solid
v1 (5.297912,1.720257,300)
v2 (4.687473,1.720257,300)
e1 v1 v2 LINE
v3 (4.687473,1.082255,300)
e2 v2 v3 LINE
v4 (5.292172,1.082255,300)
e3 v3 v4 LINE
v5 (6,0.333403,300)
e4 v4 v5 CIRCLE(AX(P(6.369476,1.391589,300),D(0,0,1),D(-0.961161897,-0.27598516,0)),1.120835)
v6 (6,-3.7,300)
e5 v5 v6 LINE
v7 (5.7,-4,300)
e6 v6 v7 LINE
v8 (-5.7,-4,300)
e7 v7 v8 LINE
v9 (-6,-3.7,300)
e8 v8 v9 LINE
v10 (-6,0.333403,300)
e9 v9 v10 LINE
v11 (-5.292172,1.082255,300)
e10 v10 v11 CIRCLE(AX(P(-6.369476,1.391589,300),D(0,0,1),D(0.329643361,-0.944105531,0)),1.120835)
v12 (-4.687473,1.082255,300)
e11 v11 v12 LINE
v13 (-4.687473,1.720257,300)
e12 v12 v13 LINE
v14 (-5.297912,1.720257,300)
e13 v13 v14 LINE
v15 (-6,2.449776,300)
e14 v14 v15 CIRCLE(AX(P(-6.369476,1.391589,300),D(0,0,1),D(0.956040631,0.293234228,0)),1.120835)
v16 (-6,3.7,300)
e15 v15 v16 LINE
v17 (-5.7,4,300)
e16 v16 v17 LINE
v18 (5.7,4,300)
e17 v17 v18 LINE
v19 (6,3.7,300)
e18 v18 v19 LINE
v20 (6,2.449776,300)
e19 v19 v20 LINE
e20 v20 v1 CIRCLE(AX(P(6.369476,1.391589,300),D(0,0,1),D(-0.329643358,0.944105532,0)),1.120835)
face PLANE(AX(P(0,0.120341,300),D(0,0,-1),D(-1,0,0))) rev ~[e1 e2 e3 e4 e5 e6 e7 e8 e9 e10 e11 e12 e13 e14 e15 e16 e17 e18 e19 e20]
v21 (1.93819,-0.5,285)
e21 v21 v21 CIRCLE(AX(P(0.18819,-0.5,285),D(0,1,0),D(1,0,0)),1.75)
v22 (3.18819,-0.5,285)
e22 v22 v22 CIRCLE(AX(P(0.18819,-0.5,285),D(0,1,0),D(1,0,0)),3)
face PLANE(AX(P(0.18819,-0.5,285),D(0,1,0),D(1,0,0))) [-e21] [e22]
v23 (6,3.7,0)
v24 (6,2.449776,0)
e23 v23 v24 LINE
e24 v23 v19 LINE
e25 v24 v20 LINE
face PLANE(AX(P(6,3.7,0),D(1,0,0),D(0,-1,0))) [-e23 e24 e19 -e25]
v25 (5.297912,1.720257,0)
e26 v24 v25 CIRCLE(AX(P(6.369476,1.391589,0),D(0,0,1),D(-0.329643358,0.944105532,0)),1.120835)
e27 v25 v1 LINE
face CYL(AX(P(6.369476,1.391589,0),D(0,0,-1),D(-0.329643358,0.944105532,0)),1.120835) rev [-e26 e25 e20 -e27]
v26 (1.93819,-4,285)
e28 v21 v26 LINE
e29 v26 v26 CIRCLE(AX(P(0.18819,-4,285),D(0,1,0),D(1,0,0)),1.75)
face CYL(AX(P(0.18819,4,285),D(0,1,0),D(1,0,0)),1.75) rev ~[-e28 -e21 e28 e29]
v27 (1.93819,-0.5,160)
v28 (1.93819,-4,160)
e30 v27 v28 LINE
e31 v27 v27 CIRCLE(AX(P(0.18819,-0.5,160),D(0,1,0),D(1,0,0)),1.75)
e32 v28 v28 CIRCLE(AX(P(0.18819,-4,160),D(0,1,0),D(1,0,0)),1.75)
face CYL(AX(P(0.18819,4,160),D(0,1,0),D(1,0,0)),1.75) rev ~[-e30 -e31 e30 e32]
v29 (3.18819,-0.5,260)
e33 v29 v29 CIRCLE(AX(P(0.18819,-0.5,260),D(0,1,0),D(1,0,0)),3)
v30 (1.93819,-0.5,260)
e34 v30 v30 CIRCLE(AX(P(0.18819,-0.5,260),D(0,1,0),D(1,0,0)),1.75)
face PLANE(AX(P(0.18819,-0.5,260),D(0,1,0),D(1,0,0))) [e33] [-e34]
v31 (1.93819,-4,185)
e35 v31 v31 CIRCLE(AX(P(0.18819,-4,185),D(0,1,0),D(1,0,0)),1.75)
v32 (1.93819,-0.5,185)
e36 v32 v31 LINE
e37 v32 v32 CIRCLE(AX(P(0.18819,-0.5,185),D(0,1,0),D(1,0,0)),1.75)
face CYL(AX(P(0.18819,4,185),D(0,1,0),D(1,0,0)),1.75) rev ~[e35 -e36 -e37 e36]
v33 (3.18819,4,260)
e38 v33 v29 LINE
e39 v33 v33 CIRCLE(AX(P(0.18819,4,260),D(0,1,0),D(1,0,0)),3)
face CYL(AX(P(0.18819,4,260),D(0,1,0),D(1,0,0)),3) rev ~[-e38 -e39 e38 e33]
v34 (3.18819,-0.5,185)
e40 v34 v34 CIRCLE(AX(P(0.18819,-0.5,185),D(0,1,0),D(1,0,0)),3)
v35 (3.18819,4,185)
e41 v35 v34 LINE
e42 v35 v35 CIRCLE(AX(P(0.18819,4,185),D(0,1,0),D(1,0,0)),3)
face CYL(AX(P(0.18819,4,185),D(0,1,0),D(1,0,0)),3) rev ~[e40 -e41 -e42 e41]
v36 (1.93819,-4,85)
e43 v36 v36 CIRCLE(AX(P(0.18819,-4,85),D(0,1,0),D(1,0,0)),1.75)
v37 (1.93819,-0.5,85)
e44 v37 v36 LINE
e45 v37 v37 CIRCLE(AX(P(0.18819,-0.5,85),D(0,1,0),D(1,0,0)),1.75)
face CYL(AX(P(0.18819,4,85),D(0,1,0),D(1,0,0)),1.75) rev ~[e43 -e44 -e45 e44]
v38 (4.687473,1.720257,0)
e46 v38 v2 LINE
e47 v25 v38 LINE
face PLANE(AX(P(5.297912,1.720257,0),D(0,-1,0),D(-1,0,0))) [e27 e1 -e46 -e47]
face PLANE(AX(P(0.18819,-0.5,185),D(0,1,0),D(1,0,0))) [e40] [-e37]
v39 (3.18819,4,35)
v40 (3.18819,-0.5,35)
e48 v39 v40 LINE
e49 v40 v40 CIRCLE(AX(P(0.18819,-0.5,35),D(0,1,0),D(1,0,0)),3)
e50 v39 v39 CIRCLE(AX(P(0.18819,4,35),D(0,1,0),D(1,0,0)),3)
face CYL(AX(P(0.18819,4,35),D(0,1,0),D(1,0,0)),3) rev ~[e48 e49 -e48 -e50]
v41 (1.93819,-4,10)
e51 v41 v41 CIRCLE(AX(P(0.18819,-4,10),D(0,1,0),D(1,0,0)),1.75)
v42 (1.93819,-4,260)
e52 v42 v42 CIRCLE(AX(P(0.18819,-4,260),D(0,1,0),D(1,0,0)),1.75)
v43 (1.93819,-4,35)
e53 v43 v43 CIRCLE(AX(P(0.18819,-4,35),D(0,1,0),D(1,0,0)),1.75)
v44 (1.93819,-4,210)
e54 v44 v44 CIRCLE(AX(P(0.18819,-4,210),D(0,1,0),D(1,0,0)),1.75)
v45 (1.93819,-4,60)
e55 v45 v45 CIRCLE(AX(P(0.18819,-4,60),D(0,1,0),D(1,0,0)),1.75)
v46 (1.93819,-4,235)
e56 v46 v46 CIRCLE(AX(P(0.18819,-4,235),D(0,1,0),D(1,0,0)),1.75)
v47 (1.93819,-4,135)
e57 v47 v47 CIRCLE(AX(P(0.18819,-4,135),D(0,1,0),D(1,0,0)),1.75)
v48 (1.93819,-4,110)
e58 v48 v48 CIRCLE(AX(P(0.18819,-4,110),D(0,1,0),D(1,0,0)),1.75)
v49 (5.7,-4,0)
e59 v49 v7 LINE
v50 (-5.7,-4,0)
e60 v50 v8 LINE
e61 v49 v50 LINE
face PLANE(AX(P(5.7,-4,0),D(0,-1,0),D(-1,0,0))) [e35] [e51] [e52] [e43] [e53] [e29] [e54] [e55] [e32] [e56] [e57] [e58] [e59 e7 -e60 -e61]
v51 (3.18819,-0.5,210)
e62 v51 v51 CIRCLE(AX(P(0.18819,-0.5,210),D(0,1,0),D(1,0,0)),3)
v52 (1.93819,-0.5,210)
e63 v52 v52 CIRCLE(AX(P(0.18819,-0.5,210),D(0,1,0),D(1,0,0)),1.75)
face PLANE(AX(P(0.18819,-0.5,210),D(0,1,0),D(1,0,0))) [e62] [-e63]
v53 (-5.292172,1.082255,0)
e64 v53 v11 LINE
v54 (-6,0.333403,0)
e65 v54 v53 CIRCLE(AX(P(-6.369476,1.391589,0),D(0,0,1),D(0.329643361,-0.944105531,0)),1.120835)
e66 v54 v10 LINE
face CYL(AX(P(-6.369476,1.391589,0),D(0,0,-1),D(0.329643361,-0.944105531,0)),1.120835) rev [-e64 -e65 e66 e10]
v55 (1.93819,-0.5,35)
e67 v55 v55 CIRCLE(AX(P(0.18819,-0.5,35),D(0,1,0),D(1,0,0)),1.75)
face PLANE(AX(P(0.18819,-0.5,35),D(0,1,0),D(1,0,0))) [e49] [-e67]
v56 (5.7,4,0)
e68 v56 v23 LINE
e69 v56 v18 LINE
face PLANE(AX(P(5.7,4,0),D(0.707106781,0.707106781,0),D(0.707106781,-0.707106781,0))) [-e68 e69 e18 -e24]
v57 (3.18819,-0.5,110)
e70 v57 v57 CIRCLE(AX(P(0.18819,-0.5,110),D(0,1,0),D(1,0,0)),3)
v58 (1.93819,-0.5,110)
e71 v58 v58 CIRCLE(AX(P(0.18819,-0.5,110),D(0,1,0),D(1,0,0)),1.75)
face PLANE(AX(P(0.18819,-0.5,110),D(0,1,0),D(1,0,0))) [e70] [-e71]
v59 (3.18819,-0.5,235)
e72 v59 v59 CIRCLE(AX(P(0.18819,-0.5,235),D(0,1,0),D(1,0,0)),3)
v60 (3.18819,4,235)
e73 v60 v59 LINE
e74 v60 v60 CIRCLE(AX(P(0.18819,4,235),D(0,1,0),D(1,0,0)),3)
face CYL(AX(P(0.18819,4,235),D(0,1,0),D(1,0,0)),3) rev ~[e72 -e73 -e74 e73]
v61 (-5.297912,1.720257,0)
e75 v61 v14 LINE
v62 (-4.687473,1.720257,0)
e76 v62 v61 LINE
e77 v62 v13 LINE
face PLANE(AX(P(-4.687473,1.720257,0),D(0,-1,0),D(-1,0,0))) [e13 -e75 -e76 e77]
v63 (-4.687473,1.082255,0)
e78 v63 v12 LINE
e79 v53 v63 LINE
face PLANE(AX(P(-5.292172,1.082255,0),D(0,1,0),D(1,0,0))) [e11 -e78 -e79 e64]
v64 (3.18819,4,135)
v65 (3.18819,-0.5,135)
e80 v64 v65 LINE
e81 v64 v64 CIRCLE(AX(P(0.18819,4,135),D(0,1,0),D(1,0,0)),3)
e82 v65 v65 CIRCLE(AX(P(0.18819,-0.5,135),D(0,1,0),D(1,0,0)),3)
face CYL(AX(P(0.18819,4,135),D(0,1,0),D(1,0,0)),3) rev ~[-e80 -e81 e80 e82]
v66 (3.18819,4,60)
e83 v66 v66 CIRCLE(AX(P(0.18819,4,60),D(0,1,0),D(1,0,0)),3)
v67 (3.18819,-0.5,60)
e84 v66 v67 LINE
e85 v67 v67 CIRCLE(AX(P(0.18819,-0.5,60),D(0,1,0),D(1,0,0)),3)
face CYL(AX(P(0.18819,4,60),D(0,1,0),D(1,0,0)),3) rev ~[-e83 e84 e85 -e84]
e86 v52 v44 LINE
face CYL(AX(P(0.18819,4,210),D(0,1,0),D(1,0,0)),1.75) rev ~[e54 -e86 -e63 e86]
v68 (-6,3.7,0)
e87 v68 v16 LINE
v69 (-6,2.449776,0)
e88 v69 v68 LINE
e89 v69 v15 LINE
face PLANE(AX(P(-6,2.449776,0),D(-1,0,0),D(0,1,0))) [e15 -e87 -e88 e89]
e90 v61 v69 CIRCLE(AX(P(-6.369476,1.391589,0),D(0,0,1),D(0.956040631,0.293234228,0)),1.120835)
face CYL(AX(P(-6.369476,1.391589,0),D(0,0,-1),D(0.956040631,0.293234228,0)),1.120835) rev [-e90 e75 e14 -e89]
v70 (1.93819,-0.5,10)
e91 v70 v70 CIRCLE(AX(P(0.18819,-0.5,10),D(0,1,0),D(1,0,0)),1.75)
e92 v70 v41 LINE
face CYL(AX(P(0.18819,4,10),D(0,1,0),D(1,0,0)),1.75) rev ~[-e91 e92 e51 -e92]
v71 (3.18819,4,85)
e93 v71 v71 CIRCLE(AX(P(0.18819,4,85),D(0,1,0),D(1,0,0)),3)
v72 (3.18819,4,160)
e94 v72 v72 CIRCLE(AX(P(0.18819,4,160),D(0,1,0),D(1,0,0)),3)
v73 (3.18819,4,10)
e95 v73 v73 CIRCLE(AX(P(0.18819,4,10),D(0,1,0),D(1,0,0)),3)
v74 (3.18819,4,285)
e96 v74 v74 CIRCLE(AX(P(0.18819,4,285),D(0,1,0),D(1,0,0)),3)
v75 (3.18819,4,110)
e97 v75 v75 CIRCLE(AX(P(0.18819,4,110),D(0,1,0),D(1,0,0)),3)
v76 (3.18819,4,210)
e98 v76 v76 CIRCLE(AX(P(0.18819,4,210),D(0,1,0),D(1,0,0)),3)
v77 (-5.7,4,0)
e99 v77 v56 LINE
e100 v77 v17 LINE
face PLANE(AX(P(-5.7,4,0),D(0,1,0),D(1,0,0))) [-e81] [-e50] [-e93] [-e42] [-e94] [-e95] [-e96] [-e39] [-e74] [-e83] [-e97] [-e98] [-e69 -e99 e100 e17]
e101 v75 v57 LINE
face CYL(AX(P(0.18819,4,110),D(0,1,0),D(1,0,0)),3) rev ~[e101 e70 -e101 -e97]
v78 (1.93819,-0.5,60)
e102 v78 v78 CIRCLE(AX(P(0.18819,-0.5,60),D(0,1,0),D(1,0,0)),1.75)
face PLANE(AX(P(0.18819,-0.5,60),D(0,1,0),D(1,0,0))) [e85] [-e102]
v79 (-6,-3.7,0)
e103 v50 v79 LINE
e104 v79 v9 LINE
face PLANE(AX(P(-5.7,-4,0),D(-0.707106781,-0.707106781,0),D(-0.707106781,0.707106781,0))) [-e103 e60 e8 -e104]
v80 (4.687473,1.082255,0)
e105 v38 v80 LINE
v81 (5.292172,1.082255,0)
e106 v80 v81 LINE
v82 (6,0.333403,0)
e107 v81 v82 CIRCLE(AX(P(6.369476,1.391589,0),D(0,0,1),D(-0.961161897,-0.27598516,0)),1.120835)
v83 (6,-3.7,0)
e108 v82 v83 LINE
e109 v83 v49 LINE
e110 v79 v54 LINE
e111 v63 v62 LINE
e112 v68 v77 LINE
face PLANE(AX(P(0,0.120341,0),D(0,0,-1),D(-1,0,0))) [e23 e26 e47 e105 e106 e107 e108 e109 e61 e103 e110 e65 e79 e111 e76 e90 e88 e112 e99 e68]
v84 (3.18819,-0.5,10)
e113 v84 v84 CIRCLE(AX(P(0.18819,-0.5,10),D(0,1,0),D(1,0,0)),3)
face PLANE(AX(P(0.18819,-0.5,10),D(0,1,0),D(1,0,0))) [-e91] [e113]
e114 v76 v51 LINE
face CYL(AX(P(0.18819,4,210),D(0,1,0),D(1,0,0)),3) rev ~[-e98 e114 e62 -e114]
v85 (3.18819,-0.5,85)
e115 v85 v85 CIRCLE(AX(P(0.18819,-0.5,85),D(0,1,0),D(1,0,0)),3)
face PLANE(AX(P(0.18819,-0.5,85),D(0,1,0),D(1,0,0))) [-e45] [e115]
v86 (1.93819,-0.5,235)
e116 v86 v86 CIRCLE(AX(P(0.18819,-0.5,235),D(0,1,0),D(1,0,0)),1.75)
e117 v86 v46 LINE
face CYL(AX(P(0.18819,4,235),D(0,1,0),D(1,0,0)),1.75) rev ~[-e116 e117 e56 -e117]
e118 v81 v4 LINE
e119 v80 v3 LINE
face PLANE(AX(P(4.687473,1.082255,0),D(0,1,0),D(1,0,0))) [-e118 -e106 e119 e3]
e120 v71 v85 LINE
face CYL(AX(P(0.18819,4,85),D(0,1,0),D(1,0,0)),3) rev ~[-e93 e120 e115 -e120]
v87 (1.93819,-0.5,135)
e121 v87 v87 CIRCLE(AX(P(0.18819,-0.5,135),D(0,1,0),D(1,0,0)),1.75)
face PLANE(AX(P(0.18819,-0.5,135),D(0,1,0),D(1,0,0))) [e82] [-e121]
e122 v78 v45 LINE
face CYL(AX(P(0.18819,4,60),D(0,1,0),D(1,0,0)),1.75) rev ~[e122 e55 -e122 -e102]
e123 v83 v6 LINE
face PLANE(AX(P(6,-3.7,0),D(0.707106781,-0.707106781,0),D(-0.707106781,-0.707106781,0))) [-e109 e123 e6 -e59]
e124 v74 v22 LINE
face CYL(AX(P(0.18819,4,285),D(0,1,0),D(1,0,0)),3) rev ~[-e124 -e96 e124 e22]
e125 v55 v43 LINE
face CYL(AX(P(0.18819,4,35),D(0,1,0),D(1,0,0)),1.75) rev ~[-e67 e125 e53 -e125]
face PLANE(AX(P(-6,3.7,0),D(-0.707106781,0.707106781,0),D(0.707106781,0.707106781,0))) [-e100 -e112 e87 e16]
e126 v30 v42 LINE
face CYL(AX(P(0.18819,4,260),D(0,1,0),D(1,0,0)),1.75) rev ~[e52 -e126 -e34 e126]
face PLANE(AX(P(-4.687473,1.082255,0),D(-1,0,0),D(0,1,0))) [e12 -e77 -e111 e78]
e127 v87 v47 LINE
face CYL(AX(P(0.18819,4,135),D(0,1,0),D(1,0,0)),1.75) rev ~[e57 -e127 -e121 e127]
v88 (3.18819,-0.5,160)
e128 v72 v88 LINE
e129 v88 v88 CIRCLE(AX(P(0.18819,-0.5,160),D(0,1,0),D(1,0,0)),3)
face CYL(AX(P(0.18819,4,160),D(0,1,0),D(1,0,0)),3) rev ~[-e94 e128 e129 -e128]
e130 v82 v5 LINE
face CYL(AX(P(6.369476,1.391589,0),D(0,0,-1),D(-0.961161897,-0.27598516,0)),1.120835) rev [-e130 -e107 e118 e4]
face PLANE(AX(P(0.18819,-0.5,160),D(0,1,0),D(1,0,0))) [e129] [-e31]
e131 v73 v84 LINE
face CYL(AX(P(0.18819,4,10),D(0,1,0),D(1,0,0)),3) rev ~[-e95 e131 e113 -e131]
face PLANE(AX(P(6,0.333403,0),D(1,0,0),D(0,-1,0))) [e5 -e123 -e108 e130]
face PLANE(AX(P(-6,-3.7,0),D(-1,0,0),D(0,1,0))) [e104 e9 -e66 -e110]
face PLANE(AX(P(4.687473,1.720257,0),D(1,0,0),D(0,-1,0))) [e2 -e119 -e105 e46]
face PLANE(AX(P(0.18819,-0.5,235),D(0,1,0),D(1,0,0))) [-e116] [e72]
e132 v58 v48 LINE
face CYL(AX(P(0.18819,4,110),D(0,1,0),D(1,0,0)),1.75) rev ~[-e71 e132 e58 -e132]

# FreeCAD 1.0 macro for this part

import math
import FreeCAD as App
import Part
import Sketcher

doc = App.newDocument("Part")
params = doc.addObject("Spreadsheet::Sheet", "Params")
for row, (alias, value) in enumerate([
    ("sketch1_width", "11.4 mm"),
    ("pad1_length", "300 mm"),
    ("sketch2_diameter", "6 mm"),
    ("sketch2_diameter2", "3.5 mm"),
    ("pocket1_length", "4.5 mm"),
    ("sketch3_diameter", "3.5 mm"),
    ("linearpattern_pitch", "25 mm"),
], start=1):
    params.set(f"A{row}", alias)
    params.set(f"B{row}", "=" + value)
    params.setAlias(f"B{row}", alias)

body = doc.addObject("PartDesign::Body", "Body")

sketch1 = body.newObject("Sketcher::SketchObject", "Sketch")
sketch1.AttachmentSupport = (doc.getObject("XY_Plane"), [""])
sketch1.MapMode = "FlatFace"
sketch1.addGeometry(Part.LineSegment(App.Vector(-5.7, 4, 0), App.Vector(-6, 3.7, 0)), False)
sketch1.addGeometry(Part.LineSegment(App.Vector(-6, 3.7, 0), App.Vector(-6, 2.45, 0)), False)
sketch1.addGeometry(Part.ArcOfCircle(Part.Circle(App.Vector(-6.37, 1.39, 0), App.Vector(0, 0, 1), 1.12), math.radians(17), math.radians(71)), False)
sketch1.addGeometry(Part.LineSegment(App.Vector(-5.3, 1.72, 0), App.Vector(-4.69, 1.72, 0)), False)
sketch1.addGeometry(Part.LineSegment(App.Vector(-4.69, 1.72, 0), App.Vector(-4.69, 1.08, 0)), False)
sketch1.addGeometry(Part.LineSegment(App.Vector(-4.69, 1.08, 0), App.Vector(-5.29, 1.08, 0)), False)
sketch1.addGeometry(Part.ArcOfCircle(Part.Circle(App.Vector(-6.37, 1.39, 0), App.Vector(0, 0, 1), 1.12), math.radians(-71), math.radians(-16)), False)
sketch1.addGeometry(Part.LineSegment(App.Vector(-6, 0.33, 0), App.Vector(-6, -3.7, 0)), False)
sketch1.addGeometry(Part.LineSegment(App.Vector(-6, -3.7, 0), App.Vector(-5.7, -4, 0)), False)
sketch1.addGeometry(Part.LineSegment(App.Vector(-5.7, -4, 0), App.Vector(5.7, -4, 0)), False)
sketch1.addGeometry(Part.LineSegment(App.Vector(5.7, -4, 0), App.Vector(6, -3.7, 0)), False)
sketch1.addGeometry(Part.LineSegment(App.Vector(6, -3.7, 0), App.Vector(6, 0.33, 0)), False)
sketch1.addGeometry(Part.ArcOfCircle(Part.Circle(App.Vector(6.37, 1.39, 0), App.Vector(0, 0, 1), 1.12), math.radians(-164), math.radians(-109)), False)
sketch1.addGeometry(Part.LineSegment(App.Vector(5.29, 1.08, 0), App.Vector(4.69, 1.08, 0)), False)
sketch1.addGeometry(Part.LineSegment(App.Vector(4.69, 1.08, 0), App.Vector(4.69, 1.72, 0)), False)
sketch1.addGeometry(Part.LineSegment(App.Vector(4.69, 1.72, 0), App.Vector(5.3, 1.72, 0)), False)
sketch1.addGeometry(Part.ArcOfCircle(Part.Circle(App.Vector(6.37, 1.39, 0), App.Vector(0, 0, 1), 1.12), math.radians(109), math.radians(163)), False)
sketch1.addGeometry(Part.LineSegment(App.Vector(6, 2.45, 0), App.Vector(6, 3.7, 0)), False)
sketch1.addGeometry(Part.LineSegment(App.Vector(6, 3.7, 0), App.Vector(5.7, 4, 0)), False)
sketch1.addGeometry(Part.LineSegment(App.Vector(5.7, 4, 0), App.Vector(-5.7, 4, 0)), False)
sketch1.addConstraint(Sketcher.Constraint("Coincident", 0, 2, 1, 1))
sketch1.addConstraint(Sketcher.Constraint("Coincident", 1, 2, 2, 2))
sketch1.addConstraint(Sketcher.Constraint("Coincident", 2, 1, 3, 1))
sketch1.addConstraint(Sketcher.Constraint("Coincident", 3, 2, 4, 1))
sketch1.addConstraint(Sketcher.Constraint("Coincident", 4, 2, 5, 1))
sketch1.addConstraint(Sketcher.Constraint("Coincident", 5, 2, 6, 2))
sketch1.addConstraint(Sketcher.Constraint("Coincident", 6, 1, 7, 1))
sketch1.addConstraint(Sketcher.Constraint("Coincident", 7, 2, 8, 1))
sketch1.addConstraint(Sketcher.Constraint("Coincident", 8, 2, 9, 1))
sketch1.addConstraint(Sketcher.Constraint("Coincident", 9, 2, 10, 1))
sketch1.addConstraint(Sketcher.Constraint("Coincident", 10, 2, 11, 1))
sketch1.addConstraint(Sketcher.Constraint("Coincident", 11, 2, 12, 2))
sketch1.addConstraint(Sketcher.Constraint("Coincident", 12, 1, 13, 1))
sketch1.addConstraint(Sketcher.Constraint("Coincident", 13, 2, 14, 1))
sketch1.addConstraint(Sketcher.Constraint("Coincident", 14, 2, 15, 1))
sketch1.addConstraint(Sketcher.Constraint("Coincident", 15, 2, 16, 2))
sketch1.addConstraint(Sketcher.Constraint("Coincident", 16, 1, 17, 1))
sketch1.addConstraint(Sketcher.Constraint("Coincident", 17, 2, 18, 1))
sketch1.addConstraint(Sketcher.Constraint("Coincident", 18, 2, 19, 1))
sketch1.addConstraint(Sketcher.Constraint("Coincident", 19, 2, 0, 1))
sketch1.addConstraint(Sketcher.Constraint("Vertical", 1))
sketch1.addConstraint(Sketcher.Constraint("Horizontal", 3))
sketch1.addConstraint(Sketcher.Constraint("Vertical", 4))
sketch1.addConstraint(Sketcher.Constraint("Horizontal", 5))
sketch1.addConstraint(Sketcher.Constraint("Vertical", 7))
sketch1.addConstraint(Sketcher.Constraint("Horizontal", 9))
sketch1.addConstraint(Sketcher.Constraint("Vertical", 11))
sketch1.addConstraint(Sketcher.Constraint("Horizontal", 13))
sketch1.addConstraint(Sketcher.Constraint("Vertical", 14))
sketch1.addConstraint(Sketcher.Constraint("Horizontal", 15))
sketch1.addConstraint(Sketcher.Constraint("Vertical", 17))
sketch1.addConstraint(Sketcher.Constraint("Horizontal", 19))
sketch1.addConstraint(Sketcher.Constraint("Coincident", 6, 3, 2, 3))
sketch1.addConstraint(Sketcher.Constraint("Coincident", 16, 3, 12, 3))
sketch1.addConstraint(Sketcher.Constraint("Equal", 2, 6))
sketch1.addConstraint(Sketcher.Constraint("Equal", 6, 12))
sketch1.addConstraint(Sketcher.Constraint("Equal", 12, 16))
sketch1.addConstraint(Sketcher.Constraint("Symmetric", 0, 2, 10, 2, -1, 1))
sketch1.addConstraint(Sketcher.Constraint("Symmetric", 7, 2, 17, 2, -1, 1))
sketch1.addConstraint(Sketcher.Constraint("Symmetric", 8, 2, 18, 2, -1, 1))
sketch1.addConstraint(Sketcher.Constraint("Symmetric", 2, 3, 12, 3, -2))
sketch1.addConstraint(Sketcher.Constraint("Symmetric", 7, 2, 10, 2, -2))
sketch1.addConstraint(Sketcher.Constraint("Symmetric", 4, 2, 13, 2, -2))
sketch1.addConstraint(Sketcher.Constraint("Perpendicular", 0, 8))
sketch1.addConstraint(Sketcher.Constraint("Perpendicular", 8, 10))
sketch1.addConstraint(Sketcher.Constraint("Horizontal", 3, 2, 14, 2))
sketch1.addConstraint(Sketcher.Constraint("Vertical", 9, 2, 18, 2))
sketch1.addConstraint(Sketcher.Constraint("DistanceX", 9, 1, 9, 2, 11.4))
sketch1.addConstraint(Sketcher.Constraint("DistanceX", 0, 2, -1, 1, 6.0))
sketch1.addConstraint(Sketcher.Constraint("DistanceY", 8, 2, -1, 1, 4.0))
sketch1.addConstraint(Sketcher.Constraint("DistanceY", 4, 2, 4, 1, 0.638001))
sketch1.addConstraint(Sketcher.Constraint("DistanceX", 5, 2, 5, 1, 0.604699))
sketch1.addConstraint(Sketcher.Constraint("Radius", 2, 1.120835))
sketch1.addConstraint(Sketcher.Constraint("DistanceX", 3, 1, 3, 2, 0.610439))
sketch1.addConstraint(Sketcher.Constraint("DistanceY", 1, 2, 1, 1, 1.250224))
sketch1.addConstraint(Sketcher.Constraint("DistanceY", 7, 2, 7, 1, 4.033403))
sketch1.setExpression("Constraints[47]", "Params.sketch1_width")
pad1 = body.newObject("PartDesign::Pad", "Pad")
pad1.Profile = sketch1
pad1.setExpression("Length", "Params.pad1_length")

sketch2 = body.newObject("Sketcher::SketchObject", "Sketch001")
sketch2.AttachmentSupport = (doc.getObject("XZ_Plane"), [""])
sketch2.MapMode = "FlatFace"
sketch2.AttachmentOffset = App.Placement(App.Vector(0, 0, -4), App.Rotation())
sketch2.addGeometry(Part.Circle(App.Vector(0.2, 10, 0), App.Vector(0, 0, 1), 3), False)
sketch2.addGeometry(Part.Circle(App.Vector(0.2, 10, 0), App.Vector(0, 0, 1), 1.8), False)
sketch2.addConstraint(Sketcher.Constraint("Coincident", 1, 3, 0, 3))
sketch2.addConstraint(Sketcher.Constraint("Diameter", 0, 6.0))
sketch2.addConstraint(Sketcher.Constraint("Diameter", 1, 3.5))
sketch2.addConstraint(Sketcher.Constraint("DistanceY", -1, 1, 0, 3, 10.0))
sketch2.addConstraint(Sketcher.Constraint("DistanceX", -1, 1, 0, 3, 0.18819))
sketch2.setExpression("Constraints[1]", "Params.sketch2_diameter")
sketch2.setExpression("Constraints[2]", "Params.sketch2_diameter2")
pocket1 = body.newObject("PartDesign::Pocket", "Pocket")
pocket1.Profile = sketch2
pocket1.setExpression("Length", "Params.pocket1_length")
pocket1.Reversed = True

sketch3 = body.newObject("Sketcher::SketchObject", "Sketch002")
sketch3.AttachmentSupport = (doc.getObject("XZ_Plane"), [""])
sketch3.MapMode = "FlatFace"
sketch3.AttachmentOffset = App.Placement(App.Vector(0, 0, -4), App.Rotation())
sketch3.addGeometry(Part.Circle(App.Vector(0.2, 10, 0), App.Vector(0, 0, 1), 1.8), False)
sketch3.addConstraint(Sketcher.Constraint("Diameter", 0, 3.5))
sketch3.addConstraint(Sketcher.Constraint("DistanceY", -1, 1, 0, 3, 10.0))
sketch3.addConstraint(Sketcher.Constraint("DistanceX", -1, 1, 0, 3, 0.18819))
sketch3.setExpression("Constraints[0]", "Params.sketch3_diameter")
pocket2 = body.newObject("PartDesign::Pocket", "Pocket001")
pocket2.Profile = sketch3
pocket2.Type = "ThroughAll"
pocket2.Reversed = True
doc.recompute()

linearpattern = body.newObject("PartDesign::LinearPattern", "LinearPattern")
linearpattern.Originals = [pocket1, pocket2]
linearpattern.Direction = (doc.getObject("Z_Axis"), [""])
linearpattern.Mode = "offset"
linearpattern.setExpression("Offset", "Params.linearpattern_pitch")
linearpattern.Occurrences = 12
body.Tip = linearpattern

doc.recompute()
